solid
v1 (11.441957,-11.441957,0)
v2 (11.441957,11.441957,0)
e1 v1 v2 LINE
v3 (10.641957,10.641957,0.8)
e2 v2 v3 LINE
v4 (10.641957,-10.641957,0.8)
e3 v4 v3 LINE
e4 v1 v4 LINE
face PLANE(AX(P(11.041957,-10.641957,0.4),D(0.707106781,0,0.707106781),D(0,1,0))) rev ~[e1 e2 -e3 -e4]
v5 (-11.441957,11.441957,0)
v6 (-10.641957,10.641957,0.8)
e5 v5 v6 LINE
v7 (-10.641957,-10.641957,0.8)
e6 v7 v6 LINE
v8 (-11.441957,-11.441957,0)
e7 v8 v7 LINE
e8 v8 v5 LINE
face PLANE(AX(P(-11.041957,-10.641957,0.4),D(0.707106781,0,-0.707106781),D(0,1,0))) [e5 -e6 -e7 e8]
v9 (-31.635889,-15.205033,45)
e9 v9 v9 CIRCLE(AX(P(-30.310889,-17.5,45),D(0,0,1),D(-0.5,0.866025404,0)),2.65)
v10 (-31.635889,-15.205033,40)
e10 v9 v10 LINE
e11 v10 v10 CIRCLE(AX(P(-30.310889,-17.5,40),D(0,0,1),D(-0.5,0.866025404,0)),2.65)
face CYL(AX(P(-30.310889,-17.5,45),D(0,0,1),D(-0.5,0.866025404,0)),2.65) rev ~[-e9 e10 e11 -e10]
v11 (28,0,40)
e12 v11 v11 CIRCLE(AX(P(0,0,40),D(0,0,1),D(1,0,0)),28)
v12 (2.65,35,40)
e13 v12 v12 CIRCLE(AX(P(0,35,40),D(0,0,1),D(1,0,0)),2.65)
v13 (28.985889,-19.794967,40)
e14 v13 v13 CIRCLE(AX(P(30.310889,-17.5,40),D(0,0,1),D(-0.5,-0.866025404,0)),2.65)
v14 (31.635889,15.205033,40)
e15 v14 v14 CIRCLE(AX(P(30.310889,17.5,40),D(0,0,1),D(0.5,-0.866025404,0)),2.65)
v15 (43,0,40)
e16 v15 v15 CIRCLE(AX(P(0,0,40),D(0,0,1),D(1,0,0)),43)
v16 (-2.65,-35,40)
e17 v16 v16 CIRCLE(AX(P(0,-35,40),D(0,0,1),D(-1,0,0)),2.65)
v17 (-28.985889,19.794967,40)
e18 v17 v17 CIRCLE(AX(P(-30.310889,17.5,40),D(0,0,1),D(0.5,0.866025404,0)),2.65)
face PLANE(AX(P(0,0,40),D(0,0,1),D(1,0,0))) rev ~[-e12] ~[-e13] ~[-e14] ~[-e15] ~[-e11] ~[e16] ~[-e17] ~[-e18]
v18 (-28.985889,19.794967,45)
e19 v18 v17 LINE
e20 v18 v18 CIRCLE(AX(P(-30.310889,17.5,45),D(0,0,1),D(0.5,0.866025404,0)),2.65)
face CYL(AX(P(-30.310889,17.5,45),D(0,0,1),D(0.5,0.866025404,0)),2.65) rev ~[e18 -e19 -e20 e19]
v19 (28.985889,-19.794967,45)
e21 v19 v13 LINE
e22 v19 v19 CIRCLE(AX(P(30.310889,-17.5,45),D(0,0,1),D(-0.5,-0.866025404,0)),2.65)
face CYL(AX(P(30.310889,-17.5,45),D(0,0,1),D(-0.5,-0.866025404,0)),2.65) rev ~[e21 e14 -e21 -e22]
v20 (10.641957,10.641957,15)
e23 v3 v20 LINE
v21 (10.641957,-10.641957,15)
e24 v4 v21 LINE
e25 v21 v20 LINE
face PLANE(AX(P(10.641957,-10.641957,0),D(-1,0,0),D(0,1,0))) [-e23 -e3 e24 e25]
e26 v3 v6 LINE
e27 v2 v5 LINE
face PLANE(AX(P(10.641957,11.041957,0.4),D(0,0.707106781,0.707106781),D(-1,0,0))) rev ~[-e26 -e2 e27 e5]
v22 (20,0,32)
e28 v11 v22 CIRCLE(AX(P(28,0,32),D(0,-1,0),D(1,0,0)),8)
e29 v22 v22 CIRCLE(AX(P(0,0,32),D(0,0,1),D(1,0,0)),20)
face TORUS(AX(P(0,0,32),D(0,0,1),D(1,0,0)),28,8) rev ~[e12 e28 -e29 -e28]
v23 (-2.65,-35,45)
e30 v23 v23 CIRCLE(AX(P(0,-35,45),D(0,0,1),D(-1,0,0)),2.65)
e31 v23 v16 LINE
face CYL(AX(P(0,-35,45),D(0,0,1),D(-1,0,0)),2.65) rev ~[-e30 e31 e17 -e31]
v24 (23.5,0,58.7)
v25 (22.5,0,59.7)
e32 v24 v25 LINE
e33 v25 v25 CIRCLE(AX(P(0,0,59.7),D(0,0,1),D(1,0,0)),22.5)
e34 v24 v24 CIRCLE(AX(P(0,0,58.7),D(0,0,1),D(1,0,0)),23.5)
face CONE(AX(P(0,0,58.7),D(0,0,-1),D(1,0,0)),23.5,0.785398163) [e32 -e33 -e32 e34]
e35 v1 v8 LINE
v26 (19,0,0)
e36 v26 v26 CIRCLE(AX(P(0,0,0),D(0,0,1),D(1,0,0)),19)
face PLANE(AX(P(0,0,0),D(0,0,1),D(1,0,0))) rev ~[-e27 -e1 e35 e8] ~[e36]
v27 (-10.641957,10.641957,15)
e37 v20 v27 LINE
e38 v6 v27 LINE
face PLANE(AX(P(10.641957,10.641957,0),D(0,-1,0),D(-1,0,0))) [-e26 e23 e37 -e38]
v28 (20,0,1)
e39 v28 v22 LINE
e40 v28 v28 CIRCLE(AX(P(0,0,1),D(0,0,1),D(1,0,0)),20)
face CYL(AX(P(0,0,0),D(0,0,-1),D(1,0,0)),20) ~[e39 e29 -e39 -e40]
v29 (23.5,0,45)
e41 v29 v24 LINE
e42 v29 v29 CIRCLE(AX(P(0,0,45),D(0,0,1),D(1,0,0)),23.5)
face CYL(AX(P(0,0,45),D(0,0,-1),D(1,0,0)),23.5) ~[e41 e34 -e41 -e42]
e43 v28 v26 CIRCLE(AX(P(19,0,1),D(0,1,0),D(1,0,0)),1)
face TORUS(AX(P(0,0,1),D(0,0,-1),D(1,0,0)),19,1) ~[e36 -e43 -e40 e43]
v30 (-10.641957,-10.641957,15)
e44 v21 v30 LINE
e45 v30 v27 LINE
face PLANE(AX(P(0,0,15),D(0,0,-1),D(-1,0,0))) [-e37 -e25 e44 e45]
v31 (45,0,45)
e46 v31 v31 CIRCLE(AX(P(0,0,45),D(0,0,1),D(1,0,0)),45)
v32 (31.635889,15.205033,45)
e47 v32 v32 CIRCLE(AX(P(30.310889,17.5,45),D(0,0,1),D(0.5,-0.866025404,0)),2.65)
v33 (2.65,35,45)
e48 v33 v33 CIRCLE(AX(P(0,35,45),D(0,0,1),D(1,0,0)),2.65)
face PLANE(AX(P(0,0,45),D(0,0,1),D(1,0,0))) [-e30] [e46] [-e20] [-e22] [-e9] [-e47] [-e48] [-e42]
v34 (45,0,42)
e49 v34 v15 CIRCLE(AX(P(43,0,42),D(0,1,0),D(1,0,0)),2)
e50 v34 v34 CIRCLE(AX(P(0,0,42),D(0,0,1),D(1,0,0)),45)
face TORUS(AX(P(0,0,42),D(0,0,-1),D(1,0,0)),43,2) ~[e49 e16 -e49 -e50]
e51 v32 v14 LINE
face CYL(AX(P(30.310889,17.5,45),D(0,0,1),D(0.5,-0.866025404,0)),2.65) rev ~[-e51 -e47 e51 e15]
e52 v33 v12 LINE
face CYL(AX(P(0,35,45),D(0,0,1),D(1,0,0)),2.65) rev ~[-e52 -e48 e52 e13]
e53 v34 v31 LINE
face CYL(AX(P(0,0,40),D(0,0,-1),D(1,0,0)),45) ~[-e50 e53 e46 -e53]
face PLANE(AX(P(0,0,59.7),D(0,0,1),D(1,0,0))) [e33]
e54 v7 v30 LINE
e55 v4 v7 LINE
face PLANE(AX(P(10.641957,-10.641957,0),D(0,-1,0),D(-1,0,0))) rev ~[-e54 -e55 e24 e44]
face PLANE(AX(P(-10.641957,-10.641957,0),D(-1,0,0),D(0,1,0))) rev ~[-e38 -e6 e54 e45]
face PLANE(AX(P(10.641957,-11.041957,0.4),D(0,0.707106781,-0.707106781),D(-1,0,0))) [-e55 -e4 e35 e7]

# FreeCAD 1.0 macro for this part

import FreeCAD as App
import Part
import Sketcher

V = App.Vector


def edges_at(feature, points):
    """Names of the edges that pass closest to the given points."""
    edges = feature.Shape.Edges
    near = lambda p: min(range(len(edges)), key=lambda i: edges[i].distToShape(Part.Vertex(*p))[0])
    return sorted({f"Edge{near(p) + 1}" for p in points})


def add_polygon(sketch, points):
    """Adds a closed chain of lines whose ends are joined by coincident constraints."""
    first, n = sketch.GeometryCount, len(points)
    for a, b in zip(points, points[1:] + points[:1]):
        sketch.addGeometry(Part.LineSegment(App.Vector(*a, 0), App.Vector(*b, 0)), False)
    for i in range(n):
        sketch.addConstraint(Sketcher.Constraint("Coincident", first + i, 2, first + (i + 1) % n, 1))

doc = App.newDocument("Part")
params = doc.addObject("Spreadsheet::Sheet", "Params")
for row, (alias, value) in enumerate([
    ("sketch1_diameter", "40 mm"),
    ("pad1_length", "40 mm"),
    ("pocket1_length", "15 mm"),
    ("chamfer_size", "0.8 mm"),
    ("sketch3_diameter", "90 mm"),
    ("pad2_length", "5 mm"),
    ("sketch4_diameter", "47 mm"),
    ("pad3_length", "14.7 mm"),
    ("chamfer2_size", "1 mm"),
    ("fillet_radius", "2 mm"),
    ("fillet2_radius", "8 mm"),
    ("sketch5_diameter", "5.3 mm"),
    ("fillet3_radius", "1 mm"),
], start=1):
    params.set(f"A{row}", alias)
    params.set(f"B{row}", "=" + value)
    params.setAlias(f"B{row}", alias)

body = doc.addObject("PartDesign::Body", "Body")

# Sketch on XY plane
sketch1 = body.newObject("Sketcher::SketchObject", "Sketch")
sketch1.AttachmentSupport = (doc.getObject("XY_Plane"), [""])
sketch1.MapMode = "FlatFace"
sketch1.addGeometry(Part.Circle(V(0, 0, 0), V(0, 0, 1), 20), False)
sketch1.addConstraint(Sketcher.Constraint("Coincident", 0, 3, -1, 1))
sketch1.addConstraint(Sketcher.Constraint("Diameter", 0, 40.0))
sketch1.setExpression("Constraints[1]", "Params.sketch1_diameter")
pad1 = body.newObject("PartDesign::Pad", "Pad")
pad1.Profile = sketch1
pad1.setExpression("Length", "Params.pad1_length")

# Sketch on XY plane
sketch2 = body.newObject("Sketcher::SketchObject", "Sketch001")
sketch2.AttachmentSupport = (doc.getObject("XY_Plane"), [""])
sketch2.MapMode = "FlatFace"
add_polygon(sketch2, [(11, 11), (11, -11), (-11, -11), (-11, 11)])  # lines 0-3
sketch2.addConstraint(Sketcher.Constraint("Vertical", 0))
sketch2.addConstraint(Sketcher.Constraint("Horizontal", 1))
sketch2.addConstraint(Sketcher.Constraint("Vertical", 2))
sketch2.addConstraint(Sketcher.Constraint("Horizontal", 3))
sketch2.addConstraint(Sketcher.Constraint("Symmetric", 0, 2, 2, 2, -1, 1))
sketch2.addConstraint(Sketcher.Constraint("Equal", 3, 0))
sketch2.addConstraint(Sketcher.Constraint("DistanceX", 1, 2, 1, 1, 21.283914))
pocket1 = body.newObject("PartDesign::Pocket", "Pocket")
pocket1.Profile = sketch2
pocket1.setExpression("Length", "Params.pocket1_length")
pocket1.Reversed = True
doc.recompute()

chamfer = body.newObject("PartDesign::Chamfer", "Chamfer")
chamfer.Base = (pocket1, edges_at(pocket1, [
    (0, -10.642, 0),
    (-10.642, 0, 0),
    (0, 10.642, 0),
    (10.642, 0, 0),
]))
chamfer.setExpression("Size", "Params.chamfer_size")

# Sketch on XY plane
sketch3 = body.newObject("Sketcher::SketchObject", "Sketch002")
sketch3.AttachmentSupport = (doc.getObject("XY_Plane"), [""])
sketch3.MapMode = "FlatFace"
sketch3.AttachmentOffset = App.Placement(V(0, 0, 40), App.Rotation())
sketch3.addGeometry(Part.Circle(V(0, 0, 0), V(0, 0, 1), 45), False)
sketch3.addConstraint(Sketcher.Constraint("Coincident", 0, 3, -1, 1))
sketch3.addConstraint(Sketcher.Constraint("Diameter", 0, 90.0))
sketch3.setExpression("Constraints[1]", "Params.sketch3_diameter")
pad2 = body.newObject("PartDesign::Pad", "Pad001")
pad2.Profile = sketch3
pad2.setExpression("Length", "Params.pad2_length")

# Sketch on XY plane
sketch4 = body.newObject("Sketcher::SketchObject", "Sketch003")
sketch4.AttachmentSupport = (doc.getObject("XY_Plane"), [""])
sketch4.MapMode = "FlatFace"
sketch4.AttachmentOffset = App.Placement(V(0, 0, 45), App.Rotation())
sketch4.addGeometry(Part.Circle(V(0, 0, 0), V(0, 0, 1), 24), False)
sketch4.addConstraint(Sketcher.Constraint("Coincident", 0, 3, -1, 1))
sketch4.addConstraint(Sketcher.Constraint("Diameter", 0, 47.0))
sketch4.setExpression("Constraints[1]", "Params.sketch4_diameter")
pad3 = body.newObject("PartDesign::Pad", "Pad002")
pad3.Profile = sketch4
pad3.setExpression("Length", "Params.pad3_length")
doc.recompute()

chamfer2 = body.newObject("PartDesign::Chamfer", "Chamfer001")
chamfer2.Base = (pad3, edges_at(pad3, [(-23.5, 0, 59.7)]))
chamfer2.setExpression("Size", "Params.chamfer2_size")
doc.recompute()

fillet = body.newObject("PartDesign::Fillet", "Fillet")
fillet.Base = (chamfer2, edges_at(chamfer2, [(-45, 0, 40)]))
fillet.setExpression("Radius", "Params.fillet_radius")
doc.recompute()

fillet2 = body.newObject("PartDesign::Fillet", "Fillet001")
fillet2.Base = (fillet, edges_at(fillet, [(-20, 0, 40)]))
fillet2.setExpression("Radius", "Params.fillet2_radius")

# Sketch on XY plane
sketch5 = body.newObject("Sketcher::SketchObject", "Sketch004")
sketch5.AttachmentSupport = (doc.getObject("XY_Plane"), [""])
sketch5.MapMode = "FlatFace"
sketch5.AttachmentOffset = App.Placement(V(0, 0, 45), App.Rotation())
sketch5.addGeometry(Part.Circle(V(0, 35, 0), V(0, 0, 1), 2.6), False)
sketch5.addConstraint(Sketcher.Constraint("PointOnObject", 0, 3, -2))
sketch5.addConstraint(Sketcher.Constraint("Diameter", 0, 5.3))
sketch5.addConstraint(Sketcher.Constraint("DistanceY", -1, 1, 0, 3, 35.0))
sketch5.setExpression("Constraints[1]", "Params.sketch5_diameter")
pocket2 = body.newObject("PartDesign::Pocket", "Pocket001")
pocket2.Profile = sketch5
pocket2.Type = "ThroughAll"
doc.recompute()

polarpattern = body.newObject("PartDesign::PolarPattern", "PolarPattern")
polarpattern.Originals = [pocket2]
polarpattern.Axis = (doc.getObject("Z_Axis"), [""])
polarpattern.Angle = 360
polarpattern.Occurrences = 6
body.Tip = polarpattern
doc.recompute()

fillet3 = body.newObject("PartDesign::Fillet", "Fillet002")
fillet3.Base = (polarpattern, edges_at(polarpattern, [(-20, 0, 0)]))
fillet3.setExpression("Radius", "Params.fillet3_radius")

doc.recompute()
